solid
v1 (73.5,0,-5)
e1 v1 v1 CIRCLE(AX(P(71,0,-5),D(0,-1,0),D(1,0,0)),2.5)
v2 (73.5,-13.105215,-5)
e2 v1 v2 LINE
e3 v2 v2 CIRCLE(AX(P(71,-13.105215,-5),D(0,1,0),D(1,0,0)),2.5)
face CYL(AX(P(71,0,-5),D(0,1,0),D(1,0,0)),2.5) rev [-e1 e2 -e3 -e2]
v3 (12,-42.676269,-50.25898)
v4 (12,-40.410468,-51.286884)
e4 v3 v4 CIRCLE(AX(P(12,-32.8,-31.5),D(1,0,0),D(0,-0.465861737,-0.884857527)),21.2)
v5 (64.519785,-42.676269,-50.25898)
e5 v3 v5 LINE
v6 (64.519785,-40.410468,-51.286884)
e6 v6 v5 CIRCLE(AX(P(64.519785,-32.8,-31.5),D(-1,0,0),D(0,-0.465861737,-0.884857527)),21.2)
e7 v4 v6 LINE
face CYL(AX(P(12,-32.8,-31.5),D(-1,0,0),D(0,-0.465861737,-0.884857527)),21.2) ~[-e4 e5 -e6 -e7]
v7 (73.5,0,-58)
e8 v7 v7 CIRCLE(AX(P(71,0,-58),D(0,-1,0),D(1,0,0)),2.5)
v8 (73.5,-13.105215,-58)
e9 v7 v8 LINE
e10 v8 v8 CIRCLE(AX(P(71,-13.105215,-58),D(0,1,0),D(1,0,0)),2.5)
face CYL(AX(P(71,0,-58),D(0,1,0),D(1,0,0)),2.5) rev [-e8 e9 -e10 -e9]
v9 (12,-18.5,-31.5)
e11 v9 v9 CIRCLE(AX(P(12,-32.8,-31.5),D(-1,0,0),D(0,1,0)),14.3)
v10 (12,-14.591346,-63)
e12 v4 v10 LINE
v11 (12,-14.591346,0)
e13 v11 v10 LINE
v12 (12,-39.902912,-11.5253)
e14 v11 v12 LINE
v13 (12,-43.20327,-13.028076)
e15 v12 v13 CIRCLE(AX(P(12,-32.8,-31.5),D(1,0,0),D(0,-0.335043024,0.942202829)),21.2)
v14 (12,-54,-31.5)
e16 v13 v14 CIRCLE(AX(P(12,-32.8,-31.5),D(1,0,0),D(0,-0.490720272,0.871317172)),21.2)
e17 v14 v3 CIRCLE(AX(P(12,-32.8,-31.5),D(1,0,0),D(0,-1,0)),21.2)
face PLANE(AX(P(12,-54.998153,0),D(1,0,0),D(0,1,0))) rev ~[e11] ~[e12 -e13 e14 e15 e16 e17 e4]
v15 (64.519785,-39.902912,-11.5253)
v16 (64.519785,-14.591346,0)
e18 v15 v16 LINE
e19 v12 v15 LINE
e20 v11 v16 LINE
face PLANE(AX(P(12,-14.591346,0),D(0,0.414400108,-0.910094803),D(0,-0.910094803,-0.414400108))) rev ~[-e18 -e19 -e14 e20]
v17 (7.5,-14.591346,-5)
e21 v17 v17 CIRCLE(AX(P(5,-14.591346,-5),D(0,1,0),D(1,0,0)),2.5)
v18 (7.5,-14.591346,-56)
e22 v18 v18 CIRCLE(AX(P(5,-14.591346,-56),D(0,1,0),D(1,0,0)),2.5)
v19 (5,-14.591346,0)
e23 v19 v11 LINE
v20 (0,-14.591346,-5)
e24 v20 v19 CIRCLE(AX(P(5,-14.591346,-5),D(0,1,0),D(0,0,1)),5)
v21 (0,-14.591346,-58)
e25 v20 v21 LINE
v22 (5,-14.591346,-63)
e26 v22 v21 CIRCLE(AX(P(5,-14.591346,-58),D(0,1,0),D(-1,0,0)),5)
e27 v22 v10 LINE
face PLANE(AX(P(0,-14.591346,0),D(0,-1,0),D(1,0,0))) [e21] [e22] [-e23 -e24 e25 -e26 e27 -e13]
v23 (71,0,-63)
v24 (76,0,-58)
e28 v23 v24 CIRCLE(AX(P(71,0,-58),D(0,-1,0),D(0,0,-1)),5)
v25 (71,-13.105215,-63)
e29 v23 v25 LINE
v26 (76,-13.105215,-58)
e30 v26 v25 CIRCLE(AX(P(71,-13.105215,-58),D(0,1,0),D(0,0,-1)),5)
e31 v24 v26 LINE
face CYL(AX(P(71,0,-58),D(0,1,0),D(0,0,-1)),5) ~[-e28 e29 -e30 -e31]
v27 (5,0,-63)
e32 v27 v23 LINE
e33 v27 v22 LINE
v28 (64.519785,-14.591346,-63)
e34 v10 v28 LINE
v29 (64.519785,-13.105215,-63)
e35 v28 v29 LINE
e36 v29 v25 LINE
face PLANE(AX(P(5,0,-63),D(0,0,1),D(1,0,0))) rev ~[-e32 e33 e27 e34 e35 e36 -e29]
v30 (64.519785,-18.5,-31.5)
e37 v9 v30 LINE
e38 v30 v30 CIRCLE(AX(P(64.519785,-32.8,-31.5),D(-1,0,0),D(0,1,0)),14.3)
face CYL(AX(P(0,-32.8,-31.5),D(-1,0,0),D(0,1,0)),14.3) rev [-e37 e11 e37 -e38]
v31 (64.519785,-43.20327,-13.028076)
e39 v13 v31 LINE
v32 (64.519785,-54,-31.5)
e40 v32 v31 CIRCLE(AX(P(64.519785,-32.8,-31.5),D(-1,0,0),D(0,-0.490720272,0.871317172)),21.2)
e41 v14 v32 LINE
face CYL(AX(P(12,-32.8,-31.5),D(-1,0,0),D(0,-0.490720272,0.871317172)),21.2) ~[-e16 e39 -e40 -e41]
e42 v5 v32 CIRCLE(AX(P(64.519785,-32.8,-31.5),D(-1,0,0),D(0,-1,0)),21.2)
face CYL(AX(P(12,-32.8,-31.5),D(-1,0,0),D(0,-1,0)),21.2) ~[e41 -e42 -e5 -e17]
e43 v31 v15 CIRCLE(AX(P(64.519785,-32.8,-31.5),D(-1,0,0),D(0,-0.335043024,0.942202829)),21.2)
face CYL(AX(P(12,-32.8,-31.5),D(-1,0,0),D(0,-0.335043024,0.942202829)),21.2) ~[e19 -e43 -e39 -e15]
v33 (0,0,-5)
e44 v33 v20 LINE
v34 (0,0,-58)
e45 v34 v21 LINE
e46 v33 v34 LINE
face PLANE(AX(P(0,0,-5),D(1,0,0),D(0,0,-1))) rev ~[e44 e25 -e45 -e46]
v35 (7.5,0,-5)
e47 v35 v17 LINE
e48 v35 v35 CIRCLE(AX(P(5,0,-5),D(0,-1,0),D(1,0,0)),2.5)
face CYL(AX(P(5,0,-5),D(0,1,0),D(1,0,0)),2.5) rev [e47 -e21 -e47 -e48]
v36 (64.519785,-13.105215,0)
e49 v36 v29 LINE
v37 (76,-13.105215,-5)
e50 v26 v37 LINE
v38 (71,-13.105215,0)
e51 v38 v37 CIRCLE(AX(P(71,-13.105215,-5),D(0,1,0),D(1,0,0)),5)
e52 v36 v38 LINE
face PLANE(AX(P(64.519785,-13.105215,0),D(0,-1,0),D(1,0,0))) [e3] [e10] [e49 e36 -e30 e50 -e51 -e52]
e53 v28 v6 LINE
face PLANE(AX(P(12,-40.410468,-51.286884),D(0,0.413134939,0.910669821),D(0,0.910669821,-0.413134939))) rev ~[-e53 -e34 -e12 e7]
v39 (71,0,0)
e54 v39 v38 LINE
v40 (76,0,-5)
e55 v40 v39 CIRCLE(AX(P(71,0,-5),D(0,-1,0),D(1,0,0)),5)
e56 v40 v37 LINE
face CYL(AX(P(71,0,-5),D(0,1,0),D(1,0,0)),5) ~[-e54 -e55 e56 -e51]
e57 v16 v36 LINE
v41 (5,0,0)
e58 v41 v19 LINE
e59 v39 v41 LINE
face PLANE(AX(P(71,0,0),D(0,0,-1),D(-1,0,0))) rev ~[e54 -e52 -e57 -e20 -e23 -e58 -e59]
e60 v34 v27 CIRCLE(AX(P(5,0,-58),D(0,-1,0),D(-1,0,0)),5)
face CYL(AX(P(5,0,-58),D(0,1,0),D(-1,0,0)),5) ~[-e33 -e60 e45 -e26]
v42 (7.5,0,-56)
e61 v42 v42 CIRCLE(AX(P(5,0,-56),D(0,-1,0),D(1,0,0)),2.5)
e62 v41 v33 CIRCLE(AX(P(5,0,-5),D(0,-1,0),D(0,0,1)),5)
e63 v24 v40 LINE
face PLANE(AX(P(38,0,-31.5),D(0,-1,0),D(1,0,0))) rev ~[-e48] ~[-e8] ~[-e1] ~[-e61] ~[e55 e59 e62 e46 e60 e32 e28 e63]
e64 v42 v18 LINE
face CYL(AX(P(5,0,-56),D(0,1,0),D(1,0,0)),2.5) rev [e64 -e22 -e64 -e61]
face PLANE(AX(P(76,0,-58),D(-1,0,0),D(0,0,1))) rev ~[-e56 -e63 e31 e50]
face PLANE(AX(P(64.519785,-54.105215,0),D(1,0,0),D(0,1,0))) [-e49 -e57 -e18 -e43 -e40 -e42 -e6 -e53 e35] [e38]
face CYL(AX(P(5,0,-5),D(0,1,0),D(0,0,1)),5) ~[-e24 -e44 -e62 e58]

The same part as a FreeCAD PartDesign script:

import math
import FreeCAD as App
import Part
import Sketcher

V = App.Vector
Q = App.Units.Quantity


def add_polygon(sketch, points):
    """Adds a closed chain of lines whose ends are joined by coincident constraints."""
    first, n = sketch.GeometryCount, len(points)
    for a, b in zip(points, points[1:] + points[:1]):
        sketch.addGeometry(Part.LineSegment(App.Vector(*a, 0), App.Vector(*b, 0)), False)
    for i in range(n):
        sketch.addConstraint(Sketcher.Constraint("Coincident", first + i, 2, first + (i + 1) % n, 1))

doc = App.newDocument("Part")
body = doc.addObject("PartDesign::Body", "Body")

sketch1 = body.newObject("Sketcher::SketchObject", "Sketch")
sketch1.AttachmentSupport = (doc.getObject("XZ_Plane"), [""])
sketch1.MapMode = "FlatFace"
sketch1.addGeometry(Part.LineSegment(V(71, 0, 0), V(5, 0, 0)), False)
sketch1.addGeometry(Part.ArcOfCircle(Part.Circle(V(5, -5, 0), V(0, 0, 1), 5), math.radians(90), math.radians(180)), False)
sketch1.addGeometry(Part.LineSegment(V(0, -5, 0), V(0, -58, 0)), False)
sketch1.addGeometry(Part.ArcOfCircle(Part.Circle(V(5, -58, 0), V(0, 0, 1), 5), math.radians(180), math.radians(270)), False)
sketch1.addGeometry(Part.LineSegment(V(5, -63, 0), V(71, -63, 0)), False)
sketch1.addGeometry(Part.ArcOfCircle(Part.Circle(V(71, -58, 0), V(0, 0, 1), 5), math.radians(-90), math.radians(0)), False)
sketch1.addGeometry(Part.LineSegment(V(76, -58, 0), V(76, -5, 0)), False)
sketch1.addGeometry(Part.ArcOfCircle(Part.Circle(V(71, -5, 0), V(0, 0, 1), 5), math.radians(0), math.radians(90)), False)
sketch1.addGeometry(Part.Circle(V(5, -56, 0), V(0, 0, 1), 2.5), False)
sketch1.addGeometry(Part.Circle(V(71, -58, 0), V(0, 0, 1), 2.5), False)
sketch1.addGeometry(Part.Circle(V(5, -5, 0), V(0, 0, 1), 2.5), False)
sketch1.addGeometry(Part.Circle(V(71, -5, 0), V(0, 0, 1), 2.5), False)
sketch1.addConstraint(Sketcher.Constraint("Tangent", 0, 2, 1, 1))
sketch1.addConstraint(Sketcher.Constraint("Tangent", 1, 2, 2, 1))
sketch1.addConstraint(Sketcher.Constraint("Tangent", 2, 2, 3, 1))
sketch1.addConstraint(Sketcher.Constraint("Tangent", 3, 2, 4, 1))
sketch1.addConstraint(Sketcher.Constraint("Tangent", 4, 2, 5, 1))
sketch1.addConstraint(Sketcher.Constraint("Tangent", 5, 2, 6, 1))
sketch1.addConstraint(Sketcher.Constraint("Tangent", 6, 2, 7, 1))
sketch1.addConstraint(Sketcher.Constraint("Tangent", 7, 2, 0, 1))
sketch1.addConstraint(Sketcher.Constraint("Horizontal", 0))
sketch1.addConstraint(Sketcher.Constraint("Vertical", 2))
sketch1.addConstraint(Sketcher.Constraint("Horizontal", 4))
sketch1.addConstraint(Sketcher.Constraint("Vertical", 6))
sketch1.addConstraint(Sketcher.Constraint("Coincident", 9, 3, 5, 3))
sketch1.addConstraint(Sketcher.Constraint("Coincident", 10, 3, 1, 3))
sketch1.addConstraint(Sketcher.Constraint("Coincident", 11, 3, 7, 3))
sketch1.addConstraint(Sketcher.Constraint("Equal", 1, 3))
sketch1.addConstraint(Sketcher.Constraint("Equal", 3, 5))
sketch1.addConstraint(Sketcher.Constraint("Equal", 5, 7))
sketch1.addConstraint(Sketcher.Constraint("Equal", 8, 9))
sketch1.addConstraint(Sketcher.Constraint("Equal", 9, 10))
sketch1.addConstraint(Sketcher.Constraint("Equal", 10, 11))
sketch1.addConstraint(Sketcher.Constraint("PointOnObject", 0, 2, -1))
sketch1.addConstraint(Sketcher.Constraint("PointOnObject", 1, 2, -2))
sketch1.addConstraint(Sketcher.Constraint("Vertical", 3, 3, 8, 3))
sketch1.addConstraint(Sketcher.Constraint("Diameter", 8, Q("5 mm")))
sketch1.addConstraint(Sketcher.Constraint("Radius", 1, Q("5 mm")))
sketch1.addConstraint(Sketcher.Constraint("DistanceX", 0, 2, 0, 1, Q("66 mm")))
sketch1.addConstraint(Sketcher.Constraint("DistanceY", 2, 2, 2, 1, Q("53 mm")))
sketch1.addConstraint(Sketcher.Constraint("DistanceY", 8, 3, -1, 1, Q("56 mm")))
pad1 = body.newObject("PartDesign::Pad", "Pad")
pad1.Profile = sketch1
pad1.Length = 54

sketch2 = body.newObject("Sketcher::SketchObject", "Sketch001")
sketch2.AttachmentSupport = (doc.getObject("XY_Plane"), [""])
sketch2.MapMode = "FlatFace"
add_polygon(sketch2, [(0, -15), (0, -55), (12, -55), (12, -15)])
add_polygon(sketch2, [(65, -13), (65, -54), (77, -54), (77, -13)])
sketch2.addConstraint(Sketcher.Constraint("Vertical", 0))
sketch2.addConstraint(Sketcher.Constraint("Horizontal", 1))
sketch2.addConstraint(Sketcher.Constraint("Vertical", 2))
sketch2.addConstraint(Sketcher.Constraint("Horizontal", 3))
sketch2.addConstraint(Sketcher.Constraint("Vertical", 4))
sketch2.addConstraint(Sketcher.Constraint("Horizontal", 5))
sketch2.addConstraint(Sketcher.Constraint("Vertical", 6))
sketch2.addConstraint(Sketcher.Constraint("Horizontal", 7))
sketch2.addConstraint(Sketcher.Constraint("PointOnObject", 0, 2, -2))
sketch2.addConstraint(Sketcher.Constraint("Equal", 3, 5))
sketch2.addConstraint(Sketcher.Constraint("DistanceX", 1, 1, 1, 2, Q("12 mm")))
sketch2.addConstraint(Sketcher.Constraint("DistanceY", 4, 2, 4, 1, Q("41 mm")))
sketch2.addConstraint(Sketcher.Constraint("DistanceY", 0, 2, 0, 1, Q("40.406806 mm")))
sketch2.addConstraint(Sketcher.Constraint("DistanceY", 4, 2, 2, 2, Q("39.513869 mm")))
sketch2.addConstraint(Sketcher.Constraint("DistanceY", 0, 2, -1, 1, Q("54.998153 mm")))
sketch2.addConstraint(Sketcher.Constraint("DistanceX", -1, 1, 4, 2, Q("64.519785 mm")))
pocket1 = body.newObject("PartDesign::Pocket", "Pocket")
pocket1.Profile = sketch2
pocket1.Length = 65

sketch3 = body.newObject("Sketcher::SketchObject", "Sketch002")
sketch3.AttachmentSupport = (doc.getObject("YZ_Plane"), [""])
sketch3.MapMode = "FlatFace"
sketch3.addGeometry(Part.Circle(V(-33, -32, 0), V(0, 0, 1), 14), False)
sketch3.addConstraint(Sketcher.Constraint("Diameter", 0, Q("28.6 mm")))
sketch3.addConstraint(Sketcher.Constraint("DistanceX", 0, 3, -1, 1, Q("32.8 mm")))
sketch3.addConstraint(Sketcher.Constraint("DistanceY", 0, 3, -1, 1, Q("31.5 mm")))
pocket2 = body.newObject("PartDesign::Pocket", "Pocket001")
pocket2.Profile = sketch3
pocket2.Length = 100
pocket2.Reversed = True

sketch4 = body.newObject("Sketcher::SketchObject", "Sketch003")
sketch4.AttachmentSupport = (doc.getObject("YZ_Plane"), [""])
sketch4.MapMode = "FlatFace"
sketch4.AttachmentOffset = App.Placement(V(0, 0, 12), App.Rotation())
sketch4.addGeometry(Part.ArcOfCircle(Part.Circle(V(-32.8, -31.5, 0), V(0, 0, 1), 21.2), math.radians(-117.77), math.radians(-111.04)), False)
sketch4.addGeometry(Part.LineSegment(V(-40.4, -51.3, 0), V(-14.6, -63, 0)), False)
sketch4.addGeometry(Part.LineSegment(V(-14.6, -63, 0), V(-54, -63, 0)), False)
sketch4.addGeometry(Part.LineSegment(V(-54, -63, 0), V(-54, -31.5, 0)), False)
sketch4.addGeometry(Part.ArcOfCircle(Part.Circle(V(-32.8, -31.5, 0), V(0, 0, 1), 21.2), math.radians(180), math.radians(242)), False)
sketch4.addGeometry(Part.ArcOfCircle(Part.Circle(V(-32.8, -31.5, 0), V(0, 0, 1), 21.2), math.radians(119), math.radians(180)), False)
sketch4.addGeometry(Part.LineSegment(V(-54, -31.5, 0), V(-54, 0, 0)), False)
sketch4.addGeometry(Part.LineSegment(V(-54, 0, 0), V(-14.6, 0, 0)), False)
sketch4.addGeometry(Part.LineSegment(V(-14.6, 0, 0), V(-39.9, -11.5, 0)), False)
sketch4.addGeometry(Part.ArcOfCircle(Part.Circle(V(-32.8, -31.5, 0), V(0, 0, 1), 21.2), math.radians(109.58), math.radians(119.39)), False)
sketch4.addConstraint(Sketcher.Constraint("Coincident", 0, 2, 1, 1))
sketch4.addConstraint(Sketcher.Constraint("Coincident", 1, 2, 2, 1))
sketch4.addConstraint(Sketcher.Constraint("Coincident", 2, 2, 3, 1))
sketch4.addConstraint(Sketcher.Constraint("Tangent", 3, 2, 4, 1))
sketch4.addConstraint(Sketcher.Constraint("Tangent", 4, 2, 0, 1))
sketch4.addConstraint(Sketcher.Constraint("Tangent", 5, 2, 6, 1))
sketch4.addConstraint(Sketcher.Constraint("Coincident", 6, 2, 7, 1))
sketch4.addConstraint(Sketcher.Constraint("Coincident", 7, 2, 8, 1))
sketch4.addConstraint(Sketcher.Constraint("Coincident", 8, 2, 9, 1))
sketch4.addConstraint(Sketcher.Constraint("Tangent", 9, 2, 5, 1))
sketch4.addConstraint(Sketcher.Constraint("Horizontal", 2))
sketch4.addConstraint(Sketcher.Constraint("Vertical", 3))
sketch4.addConstraint(Sketcher.Constraint("Vertical", 6))
sketch4.addConstraint(Sketcher.Constraint("Horizontal", 7))
sketch4.addConstraint(Sketcher.Constraint("Coincident", 5, 3, 0, 3))
sketch4.addConstraint(Sketcher.Constraint("Coincident", 5, 2, 3, 2))
sketch4.addConstraint(Sketcher.Constraint("Equal", 5, 9))
sketch4.addConstraint(Sketcher.Constraint("PointOnObject", 6, 2, -1))
sketch4.addConstraint(Sketcher.Constraint("Vertical", 1, 2, 7, 2))
sketch4.addConstraint(Sketcher.Constraint("Equal", 3, 6))
sketch4.addConstraint(Sketcher.Constraint("Radius", 0, Q("21.2 mm")))
sketch4.addConstraint(Sketcher.Constraint("DistanceY", 3, 1, 3, 2, Q("31.5 mm")))
sketch4.addConstraint(Sketcher.Constraint("DistanceX", 2, 2, -1, 1, Q("54 mm")))
sketch4.addConstraint(Sketcher.Constraint("DistanceY", 8, 2, -1, 1, Q("11.5253 mm")))
sketch4.addConstraint(Sketcher.Constraint("DistanceX", 4, 2, 0, 2, Q("2.265801 mm")))
sketch4.addConstraint(Sketcher.Constraint("Distance", 8, Q("27.81201 mm")))
sketch4.addConstraint(Sketcher.Constraint("DistanceX", 4, 2, -1, 1, Q("42.676269 mm")))
sketch4.addConstraint(Sketcher.Constraint("DistanceX", 9, 2, -1, 1, Q("43.20327 mm")))
pocket3 = body.newObject("PartDesign::Pocket", "Pocket002")
pocket3.Profile = sketch4
pocket3.Length = 100
pocket3.Reversed = True

doc.recompute()
